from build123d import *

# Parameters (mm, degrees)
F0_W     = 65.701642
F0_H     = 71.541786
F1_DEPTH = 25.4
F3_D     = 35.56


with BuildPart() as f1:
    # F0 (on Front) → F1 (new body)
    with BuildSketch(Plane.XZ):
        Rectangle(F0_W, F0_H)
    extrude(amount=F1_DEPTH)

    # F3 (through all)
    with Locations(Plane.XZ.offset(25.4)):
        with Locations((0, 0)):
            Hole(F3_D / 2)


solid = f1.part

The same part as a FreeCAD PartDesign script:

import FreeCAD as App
import Part
import Sketcher

V = App.Vector
Q = App.Units.Quantity

doc = App.newDocument("Part")
body = doc.addObject("PartDesign::Body", "Body")

# Sketch on XZ plane
sketch1 = body.newObject("Sketcher::SketchObject", "Sketch")
sketch1.AttachmentSupport = (doc.getObject("XZ_Plane"), [""])
sketch1.MapMode = "FlatFace"
sketch1.addGeometry([
    Part.LineSegment(V(-33, 36, 0), V(-33, -36, 0)),
    Part.LineSegment(V(-33, -36, 0), V(33, -36, 0)),
    Part.LineSegment(V(33, -36, 0), V(33, 36, 0)),
    Part.LineSegment(V(33, 36, 0), V(-33, 36, 0)),
], False)
sketch1.addConstraint([
    Sketcher.Constraint("Coincident", 0, 2, 1, 1),
    Sketcher.Constraint("Coincident", 1, 2, 2, 1),
    Sketcher.Constraint("Coincident", 2, 2, 3, 1),
    Sketcher.Constraint("Coincident", 3, 2, 0, 1),
    Sketcher.Constraint("Vertical", 0),
    Sketcher.Constraint("Horizontal", 1),
    Sketcher.Constraint("Vertical", 2),
    Sketcher.Constraint("Horizontal", 3),
    Sketcher.Constraint("Symmetric", 0, 2, 2, 2, -1, 1),
    Sketcher.Constraint("DistanceX", 1, 1, 1, 2, 65.701642),
    Sketcher.Constraint("DistanceY", 0, 2, 0, 1, 71.541786),
])
pad1 = body.newObject("PartDesign::Pad", "Pad")
pad1.Profile = sketch1
pad1.Length = Q("1 in")

# Sketch on XZ plane
sketch2 = body.newObject("Sketcher::SketchObject", "Sketch001")
sketch2.AttachmentSupport = (doc.getObject("XZ_Plane"), [""])
sketch2.MapMode = "FlatFace"
sketch2.AttachmentOffset = App.Placement(V(0, 0, 1 * 25.4), App.Rotation())
sketch2.addGeometry(Part.Circle(V(0, 0, 0), V(0, 0, 1), 18), False)
sketch2.addConstraint([
    Sketcher.Constraint("Coincident", 0, 3, -1, 1),
    Sketcher.Constraint("Diameter", 0, Q("1.4 in")),
])
doc.recompute()
hole = body.newObject("PartDesign::Hole", "Hole")
hole.Profile = sketch2
hole.ThreadType = "None"
hole.Diameter = Q("1.4 in")
hole.DepthType = "ThroughAll"

doc.recompute()
